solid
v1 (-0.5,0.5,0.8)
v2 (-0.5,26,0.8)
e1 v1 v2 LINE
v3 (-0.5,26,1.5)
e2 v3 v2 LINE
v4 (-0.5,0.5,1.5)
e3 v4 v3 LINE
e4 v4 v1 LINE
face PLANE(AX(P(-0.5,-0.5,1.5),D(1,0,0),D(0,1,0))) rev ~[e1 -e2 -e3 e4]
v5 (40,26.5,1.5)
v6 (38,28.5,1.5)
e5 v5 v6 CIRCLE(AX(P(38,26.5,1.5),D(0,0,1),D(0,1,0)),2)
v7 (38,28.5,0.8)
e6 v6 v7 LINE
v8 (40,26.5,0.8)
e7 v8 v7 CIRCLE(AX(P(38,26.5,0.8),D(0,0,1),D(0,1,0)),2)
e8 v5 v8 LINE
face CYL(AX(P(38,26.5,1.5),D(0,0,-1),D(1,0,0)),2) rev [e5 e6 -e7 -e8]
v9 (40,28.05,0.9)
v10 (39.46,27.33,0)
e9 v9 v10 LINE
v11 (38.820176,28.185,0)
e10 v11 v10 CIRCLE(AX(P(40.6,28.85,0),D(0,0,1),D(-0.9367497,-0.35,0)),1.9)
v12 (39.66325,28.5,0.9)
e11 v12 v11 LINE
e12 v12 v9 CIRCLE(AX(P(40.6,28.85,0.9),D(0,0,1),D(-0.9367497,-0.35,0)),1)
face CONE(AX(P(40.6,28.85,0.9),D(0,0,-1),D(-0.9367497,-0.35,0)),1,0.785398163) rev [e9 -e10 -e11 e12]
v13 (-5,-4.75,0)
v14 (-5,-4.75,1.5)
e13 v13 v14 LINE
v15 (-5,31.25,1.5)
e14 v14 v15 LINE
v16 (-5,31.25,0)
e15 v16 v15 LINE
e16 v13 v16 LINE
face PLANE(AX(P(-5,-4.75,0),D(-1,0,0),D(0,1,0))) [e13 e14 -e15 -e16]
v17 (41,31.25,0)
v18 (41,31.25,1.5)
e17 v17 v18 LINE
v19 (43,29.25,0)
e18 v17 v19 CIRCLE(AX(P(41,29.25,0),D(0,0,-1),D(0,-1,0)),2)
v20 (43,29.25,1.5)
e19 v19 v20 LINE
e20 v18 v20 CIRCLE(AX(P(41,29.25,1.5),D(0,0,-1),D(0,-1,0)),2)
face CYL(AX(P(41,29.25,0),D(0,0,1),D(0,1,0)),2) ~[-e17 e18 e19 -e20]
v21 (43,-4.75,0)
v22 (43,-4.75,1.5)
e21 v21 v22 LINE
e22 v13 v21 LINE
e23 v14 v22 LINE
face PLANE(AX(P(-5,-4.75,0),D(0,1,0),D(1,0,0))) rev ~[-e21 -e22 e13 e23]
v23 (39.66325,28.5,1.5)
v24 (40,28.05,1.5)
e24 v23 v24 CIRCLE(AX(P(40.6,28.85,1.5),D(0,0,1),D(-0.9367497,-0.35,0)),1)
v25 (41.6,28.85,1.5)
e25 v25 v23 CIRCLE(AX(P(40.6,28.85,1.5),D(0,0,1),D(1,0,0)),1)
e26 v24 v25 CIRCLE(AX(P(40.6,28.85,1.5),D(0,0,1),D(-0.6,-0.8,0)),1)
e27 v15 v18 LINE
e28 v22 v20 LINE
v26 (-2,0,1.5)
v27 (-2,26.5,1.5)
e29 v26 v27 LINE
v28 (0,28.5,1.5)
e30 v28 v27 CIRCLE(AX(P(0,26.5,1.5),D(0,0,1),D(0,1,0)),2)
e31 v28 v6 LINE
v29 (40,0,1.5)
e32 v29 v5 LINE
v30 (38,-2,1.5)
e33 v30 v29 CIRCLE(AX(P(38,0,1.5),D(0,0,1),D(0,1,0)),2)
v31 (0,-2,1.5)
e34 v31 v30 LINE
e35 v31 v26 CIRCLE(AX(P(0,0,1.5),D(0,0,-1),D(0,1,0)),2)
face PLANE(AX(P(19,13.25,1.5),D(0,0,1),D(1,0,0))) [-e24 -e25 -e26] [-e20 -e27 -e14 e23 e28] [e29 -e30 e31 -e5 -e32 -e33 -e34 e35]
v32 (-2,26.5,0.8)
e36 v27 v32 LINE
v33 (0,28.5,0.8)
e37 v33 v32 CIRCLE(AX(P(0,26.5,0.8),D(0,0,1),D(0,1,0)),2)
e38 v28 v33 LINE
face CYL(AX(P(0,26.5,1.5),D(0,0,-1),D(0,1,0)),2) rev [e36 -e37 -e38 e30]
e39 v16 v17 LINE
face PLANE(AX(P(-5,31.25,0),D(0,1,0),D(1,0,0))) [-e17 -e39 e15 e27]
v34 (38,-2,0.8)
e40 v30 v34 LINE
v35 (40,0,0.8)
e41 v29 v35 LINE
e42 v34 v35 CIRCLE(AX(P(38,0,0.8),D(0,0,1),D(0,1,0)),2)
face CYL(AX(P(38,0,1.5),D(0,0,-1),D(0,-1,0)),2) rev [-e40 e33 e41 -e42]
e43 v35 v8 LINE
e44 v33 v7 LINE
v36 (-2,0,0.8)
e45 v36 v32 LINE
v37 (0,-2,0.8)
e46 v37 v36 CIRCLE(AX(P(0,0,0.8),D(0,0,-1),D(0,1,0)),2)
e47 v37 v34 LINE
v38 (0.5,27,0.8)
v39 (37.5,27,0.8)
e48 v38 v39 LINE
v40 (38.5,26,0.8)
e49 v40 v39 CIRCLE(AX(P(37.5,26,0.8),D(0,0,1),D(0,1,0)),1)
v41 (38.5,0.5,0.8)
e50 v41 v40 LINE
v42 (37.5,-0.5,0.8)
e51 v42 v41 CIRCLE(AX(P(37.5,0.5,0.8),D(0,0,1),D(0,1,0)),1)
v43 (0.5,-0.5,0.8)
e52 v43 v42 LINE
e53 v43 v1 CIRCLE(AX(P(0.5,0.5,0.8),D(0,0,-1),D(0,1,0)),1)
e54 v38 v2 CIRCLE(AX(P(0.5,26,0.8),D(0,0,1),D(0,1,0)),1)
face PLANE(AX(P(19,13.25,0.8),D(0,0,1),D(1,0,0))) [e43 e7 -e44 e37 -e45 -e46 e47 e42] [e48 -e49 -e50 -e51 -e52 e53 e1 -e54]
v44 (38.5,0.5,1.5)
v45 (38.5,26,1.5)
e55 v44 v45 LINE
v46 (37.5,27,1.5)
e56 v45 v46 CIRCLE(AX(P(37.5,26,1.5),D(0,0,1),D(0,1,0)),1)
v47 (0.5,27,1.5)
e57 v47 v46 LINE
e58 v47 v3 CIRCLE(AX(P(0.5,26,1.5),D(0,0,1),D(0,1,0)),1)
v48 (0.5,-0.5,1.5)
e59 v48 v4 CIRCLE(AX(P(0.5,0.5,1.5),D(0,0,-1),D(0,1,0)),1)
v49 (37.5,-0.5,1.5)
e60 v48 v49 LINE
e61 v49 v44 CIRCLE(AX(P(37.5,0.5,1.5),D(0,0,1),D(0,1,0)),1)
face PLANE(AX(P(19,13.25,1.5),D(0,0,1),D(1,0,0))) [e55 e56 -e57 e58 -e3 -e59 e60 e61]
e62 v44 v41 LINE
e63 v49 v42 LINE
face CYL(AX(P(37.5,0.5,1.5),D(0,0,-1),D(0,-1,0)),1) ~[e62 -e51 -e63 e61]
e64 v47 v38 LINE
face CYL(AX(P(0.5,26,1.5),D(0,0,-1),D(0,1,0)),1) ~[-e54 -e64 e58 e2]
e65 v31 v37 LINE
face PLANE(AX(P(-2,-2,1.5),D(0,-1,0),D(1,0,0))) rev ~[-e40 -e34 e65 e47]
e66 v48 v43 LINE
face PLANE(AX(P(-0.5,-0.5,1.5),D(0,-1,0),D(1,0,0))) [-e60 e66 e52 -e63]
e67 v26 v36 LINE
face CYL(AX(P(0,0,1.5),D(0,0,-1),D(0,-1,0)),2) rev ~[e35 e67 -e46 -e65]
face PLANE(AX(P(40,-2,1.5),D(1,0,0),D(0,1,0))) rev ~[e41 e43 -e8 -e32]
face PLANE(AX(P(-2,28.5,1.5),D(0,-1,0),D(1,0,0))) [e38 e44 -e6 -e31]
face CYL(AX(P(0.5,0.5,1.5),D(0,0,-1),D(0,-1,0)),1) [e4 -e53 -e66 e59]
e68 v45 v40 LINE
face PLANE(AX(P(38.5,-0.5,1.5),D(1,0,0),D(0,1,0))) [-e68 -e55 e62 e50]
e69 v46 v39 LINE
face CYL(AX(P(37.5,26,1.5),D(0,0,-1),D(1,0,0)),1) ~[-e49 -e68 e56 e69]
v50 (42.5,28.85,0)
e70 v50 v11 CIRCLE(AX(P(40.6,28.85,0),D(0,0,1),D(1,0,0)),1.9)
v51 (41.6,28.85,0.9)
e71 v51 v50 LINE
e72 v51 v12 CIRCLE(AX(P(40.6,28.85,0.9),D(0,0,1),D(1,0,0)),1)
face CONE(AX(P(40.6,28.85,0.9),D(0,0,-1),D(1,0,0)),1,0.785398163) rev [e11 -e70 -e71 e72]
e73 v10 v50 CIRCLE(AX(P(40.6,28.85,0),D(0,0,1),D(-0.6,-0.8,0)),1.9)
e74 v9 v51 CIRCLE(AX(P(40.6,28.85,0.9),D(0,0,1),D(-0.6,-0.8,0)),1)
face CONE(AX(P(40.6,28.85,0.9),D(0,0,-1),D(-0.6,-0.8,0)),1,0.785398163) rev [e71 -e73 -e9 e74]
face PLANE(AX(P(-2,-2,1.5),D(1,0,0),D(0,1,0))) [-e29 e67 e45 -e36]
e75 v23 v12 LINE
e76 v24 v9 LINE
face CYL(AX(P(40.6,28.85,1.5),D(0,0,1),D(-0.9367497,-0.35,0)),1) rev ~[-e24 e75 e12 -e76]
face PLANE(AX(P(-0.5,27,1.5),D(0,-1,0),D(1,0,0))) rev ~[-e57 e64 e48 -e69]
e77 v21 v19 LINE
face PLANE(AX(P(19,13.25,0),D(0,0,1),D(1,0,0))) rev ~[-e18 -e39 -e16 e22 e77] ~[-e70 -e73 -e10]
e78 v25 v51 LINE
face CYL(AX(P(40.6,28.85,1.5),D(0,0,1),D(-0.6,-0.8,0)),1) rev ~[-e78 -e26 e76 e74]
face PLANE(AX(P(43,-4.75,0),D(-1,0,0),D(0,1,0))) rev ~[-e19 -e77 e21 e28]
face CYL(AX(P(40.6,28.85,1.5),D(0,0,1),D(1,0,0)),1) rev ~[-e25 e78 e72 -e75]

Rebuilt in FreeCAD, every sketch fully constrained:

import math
import FreeCAD as App
import Part
import Sketcher

V = App.Vector
Q = App.Units.Quantity


def edges_at(feature, points):
    """Names of the edges that pass closest to the given points."""
    edges = feature.Shape.Edges
    near = lambda p: min(range(len(edges)), key=lambda i: edges[i].distToShape(Part.Vertex(*p))[0])
    return sorted({f"Edge{near(p) + 1}" for p in points})

doc = App.newDocument("Part")
body = doc.addObject("PartDesign::Body", "Body")

# Sketch on XY plane
sketch1 = doc.addObject("Sketcher::SketchObject", "Sketch")
body.addObject(sketch1)
sketch1.AttachmentSupport = (doc.XY_Plane, [""])
sketch1.MapMode = "FlatFace"
sketch1.addGeometry(Part.LineSegment(V(-5, 31.25, 0), V(-5, -4.75, 0)), False)
sketch1.addGeometry(Part.LineSegment(V(-5, -4.75, 0), V(43, -4.75, 0)), False)
sketch1.addGeometry(Part.LineSegment(V(43, -4.75, 0), V(43, 31.25, 0)), False)
sketch1.addGeometry(Part.LineSegment(V(43, 31.25, 0), V(-5, 31.25, 0)), False)
sketch1.addConstraint(Sketcher.Constraint("Coincident", 0, 2, 1, 1))
sketch1.addConstraint(Sketcher.Constraint("Coincident", 1, 2, 2, 1))
sketch1.addConstraint(Sketcher.Constraint("Coincident", 2, 2, 3, 1))
sketch1.addConstraint(Sketcher.Constraint("Coincident", 3, 2, 0, 1))
sketch1.addConstraint(Sketcher.Constraint("Vertical", 0))
sketch1.addConstraint(Sketcher.Constraint("Horizontal", 1))
sketch1.addConstraint(Sketcher.Constraint("Vertical", 2))
sketch1.addConstraint(Sketcher.Constraint("Horizontal", 3))
sketch1.addConstraint(Sketcher.Constraint("DistanceX", 1, 1, 1, 2, Q("48 mm")))
sketch1.addConstraint(Sketcher.Constraint("DistanceY", 0, 2, 0, 1, Q("36 mm")))
sketch1.addConstraint(Sketcher.Constraint("DistanceX", 0, 2, -1, 1, Q("5 mm")))
sketch1.addConstraint(Sketcher.Constraint("DistanceY", 0, 2, -1, 1, Q("4.75 mm")))
pad1 = doc.addObject("PartDesign::Pad", "Pad")
body.addObject(pad1)
pad1.Profile = sketch1
pad1.Length = 1.5

# Sketch on XY plane
sketch2 = doc.addObject("Sketcher::SketchObject", "Sketch001")
body.addObject(sketch2)
sketch2.AttachmentSupport = (doc.XY_Plane, [""])
sketch2.MapMode = "FlatFace"
sketch2.AttachmentOffset = App.Placement(V(0, 0, 1.5), App.Rotation())
sketch2.addGeometry(Part.LineSegment(V(-2, 28.5, 0), V(-2, -2, 0)), False)
sketch2.addGeometry(Part.LineSegment(V(-2, -2, 0), V(40, -2, 0)), False)
sketch2.addGeometry(Part.LineSegment(V(40, -2, 0), V(40, 28.5, 0)), False)
sketch2.addGeometry(Part.LineSegment(V(40, 28.5, 0), V(-2, 28.5, 0)), False)
sketch2.addGeometry(Part.LineSegment(V(38.5, -0.5, 0), V(-0.5, -0.5, 0)), False)
sketch2.addGeometry(Part.LineSegment(V(-0.5, -0.5, 0), V(-0.5, 27, 0)), False)
sketch2.addGeometry(Part.LineSegment(V(-0.5, 27, 0), V(38.5, 27, 0)), False)
sketch2.addGeometry(Part.LineSegment(V(38.5, 27, 0), V(38.5, -0.5, 0)), False)
sketch2.addConstraint(Sketcher.Constraint("Coincident", 0, 2, 1, 1))
sketch2.addConstraint(Sketcher.Constraint("Coincident", 1, 2, 2, 1))
sketch2.addConstraint(Sketcher.Constraint("Coincident", 2, 2, 3, 1))
sketch2.addConstraint(Sketcher.Constraint("Coincident", 3, 2, 0, 1))
sketch2.addConstraint(Sketcher.Constraint("Coincident", 4, 2, 5, 1))
sketch2.addConstraint(Sketcher.Constraint("Coincident", 5, 2, 6, 1))
sketch2.addConstraint(Sketcher.Constraint("Coincident", 6, 2, 7, 1))
sketch2.addConstraint(Sketcher.Constraint("Coincident", 7, 2, 4, 1))
sketch2.addConstraint(Sketcher.Constraint("Vertical", 0))
sketch2.addConstraint(Sketcher.Constraint("Horizontal", 1))
sketch2.addConstraint(Sketcher.Constraint("Vertical", 2))
sketch2.addConstraint(Sketcher.Constraint("Horizontal", 3))
sketch2.addConstraint(Sketcher.Constraint("Horizontal", 4))
sketch2.addConstraint(Sketcher.Constraint("Vertical", 5))
sketch2.addConstraint(Sketcher.Constraint("Horizontal", 6))
sketch2.addConstraint(Sketcher.Constraint("Vertical", 7))
sketch2.addConstraint(Sketcher.Constraint("DistanceX", 1, 1, 1, 2, Q("42 mm")))
sketch2.addConstraint(Sketcher.Constraint("DistanceX", 4, 2, 4, 1, Q("39 mm")))
sketch2.addConstraint(Sketcher.Constraint("DistanceY", 0, 2, 0, 1, Q("30.5 mm")))
sketch2.addConstraint(Sketcher.Constraint("DistanceY", 5, 1, 5, 2, Q("27.5 mm")))
sketch2.addConstraint(Sketcher.Constraint("DistanceX", 0, 2, -1, 1, Q("2 mm")))
sketch2.addConstraint(Sketcher.Constraint("DistanceY", 0, 2, -1, 1, Q("2 mm")))
sketch2.addConstraint(Sketcher.Constraint("DistanceY", -1, 1, 5, 2, Q("27 mm")))
sketch2.addConstraint(Sketcher.Constraint("DistanceX", 4, 2, -1, 1, Q("0.5 mm")))
pocket1 = doc.addObject("PartDesign::Pocket", "Pocket")
body.addObject(pocket1)
pocket1.Profile = sketch2
pocket1.Length = 0.7
doc.recompute()

fillet = doc.addObject("PartDesign::Fillet", "Fillet")
body.addObject(fillet)
fillet.Base = (pocket1, edges_at(pocket1, [
    (40, 28.5, 1.15),
    (40, -2, 1.15),
    (-2, 28.5, 1.15),
    (-2, -2, 1.15),
]))
fillet.Radius = 2
doc.recompute()

fillet2 = doc.addObject("PartDesign::Fillet", "Fillet001")
body.addObject(fillet2)
fillet2.Base = (fillet, edges_at(fillet, [
    (38.5, 27, 1.15),
    (38.5, -0.5, 1.15),
    (-0.5, -0.5, 1.15),
    (-0.5, 27, 1.15),
]))
fillet2.Radius = 1

# Sketch on XY plane
sketch3 = doc.addObject("Sketcher::SketchObject", "Sketch002")
body.addObject(sketch3)
sketch3.AttachmentSupport = (doc.XY_Plane, [""])
sketch3.MapMode = "FlatFace"
sketch3.AttachmentOffset = App.Placement(V(0, 0, 1.5), App.Rotation())
sketch3.addGeometry(Part.ArcOfCircle(Part.Circle(V(40.6, 28.85, 0), V(0, 0, 1), 1), math.radians(-159.512685), math.radians(-126.869898)), False)
sketch3.addGeometry(Part.ArcOfCircle(Part.Circle(V(40.6, 28.85, 0), V(0, 0, 1), 1), math.radians(-126.869898), math.radians(0)), False)
sketch3.addGeometry(Part.ArcOfCircle(Part.Circle(V(40.6, 28.85, 0), V(0, 0, 1), 1), math.radians(0), math.radians(200.487315)), False)
sketch3.addConstraint(Sketcher.Constraint("Tangent", 0, 2, 1, 1))
sketch3.addConstraint(Sketcher.Constraint("Tangent", 1, 2, 2, 1))
sketch3.addConstraint(Sketcher.Constraint("Tangent", 2, 2, 0, 1))
sketch3.addConstraint(Sketcher.Constraint("Horizontal", 2, 3, 1, 2))
sketch3.addConstraint(Sketcher.Constraint("Radius", 0, Q("1 mm")))
sketch3.addConstraint(Sketcher.Constraint("DistanceX", -1, 1, 0, 2, Q("40 mm")))
sketch3.addConstraint(Sketcher.Constraint("DistanceX", -1, 1, 0, 3, Q("40.6 mm")))
sketch3.addConstraint(Sketcher.Constraint("DistanceY", -1, 1, 2, 2, Q("28.5 mm")))
sketch3.addConstraint(Sketcher.Constraint("DistanceY", -1, 1, 0, 3, Q("28.85 mm")))
pocket2 = doc.addObject("PartDesign::Pocket", "Pocket001")
body.addObject(pocket2)
pocket2.Profile = sketch3
pocket2.Length = 25
doc.recompute()

chamfer = doc.addObject("PartDesign::Chamfer", "Chamfer")
body.addObject(chamfer)
chamfer.Base = (pocket2, edges_at(pocket2, [(40.422, 29.834, 0)]))
chamfer.ChamferType = "Two distances"
chamfer.Size = 0.9
chamfer.Size2 = 0.9
doc.recompute()

fillet3 = doc.addObject("PartDesign::Fillet", "Fillet002")
body.addObject(fillet3)
fillet3.Base = (chamfer, edges_at(chamfer, [(43, 31.25, 0.75)]))
fillet3.Radius = 2

doc.recompute()
